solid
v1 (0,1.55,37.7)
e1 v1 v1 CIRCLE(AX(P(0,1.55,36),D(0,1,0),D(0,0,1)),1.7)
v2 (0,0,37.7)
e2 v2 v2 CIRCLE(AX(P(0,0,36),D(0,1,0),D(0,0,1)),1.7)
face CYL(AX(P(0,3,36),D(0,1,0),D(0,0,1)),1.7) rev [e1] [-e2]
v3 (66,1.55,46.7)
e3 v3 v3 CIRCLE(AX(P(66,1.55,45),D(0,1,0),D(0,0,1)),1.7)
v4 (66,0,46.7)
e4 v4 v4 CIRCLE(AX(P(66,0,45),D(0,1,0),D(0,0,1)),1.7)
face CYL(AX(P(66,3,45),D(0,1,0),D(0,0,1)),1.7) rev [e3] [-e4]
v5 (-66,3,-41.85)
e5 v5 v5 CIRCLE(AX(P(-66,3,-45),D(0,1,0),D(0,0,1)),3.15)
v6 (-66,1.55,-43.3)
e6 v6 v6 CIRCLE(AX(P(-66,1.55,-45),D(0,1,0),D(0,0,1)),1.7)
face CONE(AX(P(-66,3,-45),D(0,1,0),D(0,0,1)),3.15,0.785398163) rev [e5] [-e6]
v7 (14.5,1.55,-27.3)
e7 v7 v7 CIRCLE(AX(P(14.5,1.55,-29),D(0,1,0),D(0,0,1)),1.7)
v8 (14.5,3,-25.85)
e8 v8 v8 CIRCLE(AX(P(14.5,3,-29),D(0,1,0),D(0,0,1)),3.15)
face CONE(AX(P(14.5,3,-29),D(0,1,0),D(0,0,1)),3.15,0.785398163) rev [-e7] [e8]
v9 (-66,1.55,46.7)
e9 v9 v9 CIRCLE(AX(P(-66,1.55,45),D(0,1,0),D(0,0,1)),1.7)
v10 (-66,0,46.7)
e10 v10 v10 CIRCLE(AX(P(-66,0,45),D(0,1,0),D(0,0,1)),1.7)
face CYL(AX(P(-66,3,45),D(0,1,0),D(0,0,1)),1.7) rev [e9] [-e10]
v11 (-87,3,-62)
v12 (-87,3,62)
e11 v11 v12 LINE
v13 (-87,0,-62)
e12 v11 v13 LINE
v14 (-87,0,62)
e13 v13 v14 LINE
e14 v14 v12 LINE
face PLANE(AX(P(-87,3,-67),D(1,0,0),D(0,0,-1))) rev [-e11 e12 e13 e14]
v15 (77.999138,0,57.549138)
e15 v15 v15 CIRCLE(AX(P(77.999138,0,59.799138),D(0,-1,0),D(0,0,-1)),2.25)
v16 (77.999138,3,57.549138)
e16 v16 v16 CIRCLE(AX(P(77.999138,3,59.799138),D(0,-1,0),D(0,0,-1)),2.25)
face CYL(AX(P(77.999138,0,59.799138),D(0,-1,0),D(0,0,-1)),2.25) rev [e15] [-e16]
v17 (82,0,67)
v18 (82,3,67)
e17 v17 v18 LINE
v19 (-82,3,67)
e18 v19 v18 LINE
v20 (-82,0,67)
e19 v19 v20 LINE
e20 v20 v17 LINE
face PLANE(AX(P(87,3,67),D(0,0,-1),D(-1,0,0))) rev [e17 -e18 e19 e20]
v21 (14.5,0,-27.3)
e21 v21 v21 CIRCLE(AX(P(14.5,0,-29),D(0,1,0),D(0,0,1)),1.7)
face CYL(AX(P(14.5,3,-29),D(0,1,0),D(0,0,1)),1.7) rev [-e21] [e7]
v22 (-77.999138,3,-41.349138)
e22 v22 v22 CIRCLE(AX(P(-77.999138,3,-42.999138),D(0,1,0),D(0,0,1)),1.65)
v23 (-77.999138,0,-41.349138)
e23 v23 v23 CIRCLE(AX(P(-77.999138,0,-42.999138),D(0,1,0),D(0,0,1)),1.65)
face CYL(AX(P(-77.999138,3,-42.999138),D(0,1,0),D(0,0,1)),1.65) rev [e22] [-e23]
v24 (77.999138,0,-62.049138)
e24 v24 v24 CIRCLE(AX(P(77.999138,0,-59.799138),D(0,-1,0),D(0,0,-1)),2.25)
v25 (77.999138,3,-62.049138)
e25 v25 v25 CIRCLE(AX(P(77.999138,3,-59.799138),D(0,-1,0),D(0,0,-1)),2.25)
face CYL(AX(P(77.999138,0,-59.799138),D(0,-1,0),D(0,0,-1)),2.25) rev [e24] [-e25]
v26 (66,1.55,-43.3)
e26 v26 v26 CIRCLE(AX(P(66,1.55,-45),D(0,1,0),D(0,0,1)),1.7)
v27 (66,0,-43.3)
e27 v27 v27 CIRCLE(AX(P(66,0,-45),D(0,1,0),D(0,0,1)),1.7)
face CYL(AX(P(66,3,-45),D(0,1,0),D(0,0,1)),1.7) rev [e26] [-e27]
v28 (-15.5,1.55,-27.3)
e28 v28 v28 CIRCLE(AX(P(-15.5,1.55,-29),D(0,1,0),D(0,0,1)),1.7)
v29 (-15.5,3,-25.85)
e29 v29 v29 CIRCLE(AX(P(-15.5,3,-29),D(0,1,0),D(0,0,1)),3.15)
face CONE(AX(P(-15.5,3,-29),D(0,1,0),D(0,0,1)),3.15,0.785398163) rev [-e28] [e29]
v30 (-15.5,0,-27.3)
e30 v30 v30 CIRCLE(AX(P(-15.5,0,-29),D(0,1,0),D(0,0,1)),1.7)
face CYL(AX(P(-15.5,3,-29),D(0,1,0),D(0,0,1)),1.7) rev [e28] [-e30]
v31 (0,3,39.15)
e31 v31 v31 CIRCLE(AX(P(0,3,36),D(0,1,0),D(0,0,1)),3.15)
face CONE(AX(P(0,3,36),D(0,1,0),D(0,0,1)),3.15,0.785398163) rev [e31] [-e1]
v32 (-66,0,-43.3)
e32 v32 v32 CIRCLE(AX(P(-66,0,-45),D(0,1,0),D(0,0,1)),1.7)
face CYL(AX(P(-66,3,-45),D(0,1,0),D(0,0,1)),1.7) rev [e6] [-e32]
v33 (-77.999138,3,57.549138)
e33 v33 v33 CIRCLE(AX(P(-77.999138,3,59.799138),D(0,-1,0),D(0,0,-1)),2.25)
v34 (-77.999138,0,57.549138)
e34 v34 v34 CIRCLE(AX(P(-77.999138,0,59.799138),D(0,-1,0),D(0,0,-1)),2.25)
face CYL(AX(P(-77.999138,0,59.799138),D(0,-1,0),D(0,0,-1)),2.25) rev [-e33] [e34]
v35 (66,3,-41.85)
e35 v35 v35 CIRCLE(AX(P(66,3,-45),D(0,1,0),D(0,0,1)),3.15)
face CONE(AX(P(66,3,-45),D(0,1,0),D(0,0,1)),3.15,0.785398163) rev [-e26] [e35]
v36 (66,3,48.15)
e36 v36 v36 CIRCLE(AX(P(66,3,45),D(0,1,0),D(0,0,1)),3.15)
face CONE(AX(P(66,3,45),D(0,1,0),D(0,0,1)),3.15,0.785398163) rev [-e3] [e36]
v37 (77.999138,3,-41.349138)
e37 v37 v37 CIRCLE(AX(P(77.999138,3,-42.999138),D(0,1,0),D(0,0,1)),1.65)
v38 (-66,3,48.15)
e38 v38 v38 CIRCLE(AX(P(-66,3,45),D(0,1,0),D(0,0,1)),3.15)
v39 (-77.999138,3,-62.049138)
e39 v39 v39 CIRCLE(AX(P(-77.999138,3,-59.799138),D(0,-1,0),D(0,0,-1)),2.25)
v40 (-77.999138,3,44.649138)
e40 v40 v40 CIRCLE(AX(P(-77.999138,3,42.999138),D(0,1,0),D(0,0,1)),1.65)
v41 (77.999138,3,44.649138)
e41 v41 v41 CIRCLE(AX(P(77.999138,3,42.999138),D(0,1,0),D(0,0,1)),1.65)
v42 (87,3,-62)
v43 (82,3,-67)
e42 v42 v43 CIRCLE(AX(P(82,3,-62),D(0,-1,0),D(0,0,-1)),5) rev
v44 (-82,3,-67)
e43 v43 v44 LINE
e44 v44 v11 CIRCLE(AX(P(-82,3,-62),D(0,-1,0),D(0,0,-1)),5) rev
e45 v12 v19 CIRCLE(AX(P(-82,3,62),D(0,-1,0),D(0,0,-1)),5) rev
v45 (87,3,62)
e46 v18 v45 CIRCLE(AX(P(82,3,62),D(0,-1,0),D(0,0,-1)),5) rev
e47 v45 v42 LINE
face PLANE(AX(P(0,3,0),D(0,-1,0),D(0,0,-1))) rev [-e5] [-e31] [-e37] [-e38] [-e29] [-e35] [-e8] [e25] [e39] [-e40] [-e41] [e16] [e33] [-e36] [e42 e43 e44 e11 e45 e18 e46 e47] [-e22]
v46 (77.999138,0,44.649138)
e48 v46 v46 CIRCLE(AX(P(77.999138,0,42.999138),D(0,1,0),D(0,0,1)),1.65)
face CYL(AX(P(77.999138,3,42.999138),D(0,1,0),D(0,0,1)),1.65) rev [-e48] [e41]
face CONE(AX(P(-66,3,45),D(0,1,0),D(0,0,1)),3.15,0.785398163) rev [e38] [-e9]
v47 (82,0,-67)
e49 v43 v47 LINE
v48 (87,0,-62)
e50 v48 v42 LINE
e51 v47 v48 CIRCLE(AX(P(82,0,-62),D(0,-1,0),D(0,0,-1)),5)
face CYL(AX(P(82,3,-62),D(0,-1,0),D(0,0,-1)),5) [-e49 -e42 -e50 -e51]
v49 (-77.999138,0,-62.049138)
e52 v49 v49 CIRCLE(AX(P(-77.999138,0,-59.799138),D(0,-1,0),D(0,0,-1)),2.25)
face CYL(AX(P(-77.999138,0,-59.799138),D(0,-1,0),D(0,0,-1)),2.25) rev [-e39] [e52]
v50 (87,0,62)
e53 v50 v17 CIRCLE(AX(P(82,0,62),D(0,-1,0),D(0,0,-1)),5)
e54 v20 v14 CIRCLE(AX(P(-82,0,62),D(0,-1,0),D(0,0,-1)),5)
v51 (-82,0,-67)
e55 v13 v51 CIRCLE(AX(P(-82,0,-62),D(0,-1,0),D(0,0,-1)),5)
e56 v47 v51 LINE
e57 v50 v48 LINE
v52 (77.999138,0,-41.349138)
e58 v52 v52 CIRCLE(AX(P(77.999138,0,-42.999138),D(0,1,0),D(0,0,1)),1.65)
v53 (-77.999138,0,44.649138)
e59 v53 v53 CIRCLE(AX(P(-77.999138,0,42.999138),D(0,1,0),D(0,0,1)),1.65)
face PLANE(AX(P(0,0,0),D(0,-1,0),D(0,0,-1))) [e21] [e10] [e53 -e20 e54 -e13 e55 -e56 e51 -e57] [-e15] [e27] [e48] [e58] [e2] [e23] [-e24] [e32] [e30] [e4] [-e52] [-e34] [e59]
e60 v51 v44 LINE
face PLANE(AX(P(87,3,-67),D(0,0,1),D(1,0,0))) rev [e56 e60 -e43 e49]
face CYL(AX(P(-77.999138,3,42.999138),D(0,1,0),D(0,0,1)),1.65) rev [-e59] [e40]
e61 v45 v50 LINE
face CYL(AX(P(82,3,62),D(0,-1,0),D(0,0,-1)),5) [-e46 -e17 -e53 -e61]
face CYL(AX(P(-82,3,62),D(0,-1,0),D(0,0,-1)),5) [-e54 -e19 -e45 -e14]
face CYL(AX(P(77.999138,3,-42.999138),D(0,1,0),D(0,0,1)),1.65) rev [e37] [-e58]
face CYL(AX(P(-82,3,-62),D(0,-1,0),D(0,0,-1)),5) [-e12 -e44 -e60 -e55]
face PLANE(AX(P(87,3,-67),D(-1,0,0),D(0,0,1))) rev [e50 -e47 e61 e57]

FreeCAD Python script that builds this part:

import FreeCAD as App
import Part
import Sketcher
Q = App.Units.Quantity


def edges_at(feature, points):
    """Names of the edges that pass closest to the given points."""
    edges = feature.Shape.Edges
    near = lambda p: min(range(len(edges)), key=lambda i: edges[i].distToShape(Part.Vertex(*p))[0])
    return sorted({f"Edge{near(p) + 1}" for p in points})


def add_polygon(sketch, points):
    """Adds a closed chain of lines whose ends are joined by coincident constraints."""
    first, n = sketch.GeometryCount, len(points)
    for a, b in zip(points, points[1:] + points[:1]):
        sketch.addGeometry(Part.LineSegment(App.Vector(*a, 0), App.Vector(*b, 0)), False)
    for i in range(n):
        sketch.addConstraint(Sketcher.Constraint("Coincident", first + i, 2, first + (i + 1) % n, 1))

doc = App.newDocument("Part")
params = doc.addObject("Spreadsheet::Sheet", "Params")
for row, (alias, value) in enumerate([
    ("sketch1_width", "174 mm"),
    ("sketch1_height", "134 mm"),
    ("pad1_length", "3 mm"),
    ("sketch2_diameter", "3.3 mm"),
    ("hole_diameter", "3.3 mm"),
    ("fillet_radius", "5 mm"),
    ("sketch3_width", "3 mm"),
    ("sketch3_height", "1.7 mm"),
    ("sketch3_width2", "1.55 mm"),
    ("groove_angle", "360 deg"),
    ("linearpattern_pitch", "132 mm"),
    ("linearpattern2_pitch", "90 mm"),
    ("linearpattern3_pitch", "159.762324 mm"),
    ("sketch4_width", "3 mm"),
    ("sketch4_height", "1.7 mm"),
    ("sketch4_width2", "1.55 mm"),
    ("groove2_angle", "360 deg"),
    ("linearpattern4_pitch", "66.597673 mm"),
    ("linearpattern5_pitch", "66.822526 mm"),
    ("sketch5_diameter", "4.5 mm"),
    ("hole2_diameter", "4.5 mm"),
], start=1):
    params.set(f"A{row}", alias)
    params.set(f"B{row}", "=" + value)
    params.setAlias(f"B{row}", alias)

body = doc.addObject("PartDesign::Body", "Body")

# Sketch on XZ plane
sketch1 = body.newObject("Sketcher::SketchObject", "Sketch")
sketch1.AttachmentSupport = (doc.getObject("XZ_Plane"), [""])
sketch1.MapMode = "FlatFace"
add_polygon(sketch1, [(-87, -67), (-87, 67), (87, 67), (87, -67)])  # lines 0-3
sketch1.addConstraint([
    Sketcher.Constraint("Vertical", 0),
    Sketcher.Constraint("Horizontal", 1),
    Sketcher.Constraint("Vertical", 2),
    Sketcher.Constraint("Horizontal", 3),
    Sketcher.Constraint("Symmetric", 0, 2, 2, 2, -1, 1),
    Sketcher.Constraint("DistanceX", 1, 1, 1, 2, 174.0),
    Sketcher.Constraint("DistanceY", 0, 1, 0, 2, 134.0),
])
sketch1.setExpression("Constraints[9]", "Params.sketch1_width")
sketch1.setExpression("Constraints[10]", "Params.sketch1_height")
pad1 = body.newObject("PartDesign::Pad", "Pad")
pad1.Profile = sketch1
pad1.setExpression("Length", "Params.pad1_length")
pad1.Reversed = True

# Sketch on XZ plane
sketch2 = body.newObject("Sketcher::SketchObject", "Sketch001")
sketch2.AttachmentSupport = (doc.getObject("XZ_Plane"), [""])
sketch2.MapMode = "FlatFace"
sketch2.AttachmentOffset = App.Placement(App.Vector(0, 0, -3), App.Rotation())
sketch2.addGeometry([
    Part.Circle(App.Vector(-78, -43, 0), App.Vector(0, 0, 1), 1.6),  # 0
    Part.Circle(App.Vector(78, -43, 0), App.Vector(0, 0, 1), 1.6),  # 1
    Part.Circle(App.Vector(78, 43, 0), App.Vector(0, 0, 1), 1.6),  # 2
    Part.Circle(App.Vector(-78, 43, 0), App.Vector(0, 0, 1), 1.6),  # 3
    Part.Circle(App.Vector(-78, -59.8, 0), App.Vector(0, 0, 1), 1.6),  # 4
    Part.Circle(App.Vector(-78, 59.8, 0), App.Vector(0, 0, 1), 1.6),  # 5
    Part.Circle(App.Vector(78, -59.8, 0), App.Vector(0, 0, 1), 1.6),  # 6
    Part.Circle(App.Vector(78, 59.8, 0), App.Vector(0, 0, 1), 1.6),  # 7
], False)
sketch2.addConstraint([
    Sketcher.Constraint("Equal", 0, 1),
    Sketcher.Constraint("Equal", 1, 2),
    Sketcher.Constraint("Equal", 2, 3),
    Sketcher.Constraint("Equal", 3, 4),
    Sketcher.Constraint("Equal", 4, 5),
    Sketcher.Constraint("Equal", 5, 6),
    Sketcher.Constraint("Equal", 6, 7),
    Sketcher.Constraint("Symmetric", 0, 3, 2, 3, -1, 1),
    Sketcher.Constraint("Symmetric", 1, 3, 3, 3, -1, 1),
    Sketcher.Constraint("Symmetric", 5, 3, 6, 3, -1, 1),
    Sketcher.Constraint("Symmetric", 4, 3, 7, 3, -1, 1),
    Sketcher.Constraint("Symmetric", 0, 3, 1, 3, -2),
    Sketcher.Constraint("Symmetric", 4, 3, 6, 3, -2),
    Sketcher.Constraint("Vertical", 3, 3, 4, 3),
    Sketcher.Constraint("Diameter", 0, 3.3),
    Sketcher.Constraint("DistanceY", 4, 3, 0, 3, 16.8),
    Sketcher.Constraint("DistanceX", 0, 3, -1, 1, 77.999138),
    Sketcher.Constraint("DistanceY", 0, 3, -1, 1, 42.999138),
])
sketch2.setExpression("Constraints[14]", "Params.sketch2_diameter")
doc.recompute()
hole = body.newObject("PartDesign::Hole", "Hole")
hole.Profile = sketch2
hole.ThreadType = "None"
hole.setExpression("Diameter", "Params.hole_diameter")
hole.DepthType = "ThroughAll"
hole.Reversed = True
doc.recompute()

fillet = body.newObject("PartDesign::Fillet", "Fillet")
fillet.Base = (hole, edges_at(hole, [
    (-87, 1.5, -67),
    (87, 1.5, -67),
    (87, 1.5, 67),
    (-87, 1.5, 67),
]))
fillet.setExpression("Radius", "Params.fillet_radius")

# Sketch on YZ plane
sketch3 = body.newObject("Sketcher::SketchObject", "Sketch002")
sketch3.AttachmentSupport = (doc.getObject("YZ_Plane"), [""])
sketch3.MapMode = "FlatFace"
sketch3.AttachmentOffset = App.Placement(App.Vector(0, 0, -66), App.Rotation())
add_polygon(sketch3, [(0, -45), (3, -45), (3, -41.9), (1.6, -43.3), (0, -43.3)])  # lines 0-4
sketch3.addGeometry(Part.LineSegment(App.Vector(3, -45, 0), App.Vector(0, -45, 0)), True)  # axis
sketch3.addConstraint([
    Sketcher.Constraint("Horizontal", 0),
    Sketcher.Constraint("Vertical", 1),
    Sketcher.Constraint("Horizontal", 3),
    Sketcher.Constraint("Vertical", 4),
    Sketcher.Constraint("Horizontal", 5),
    Sketcher.Constraint("Coincident", 5, 1, 0, 2),
    Sketcher.Constraint("PointOnObject", 3, 2, -2),
    Sketcher.Constraint("PointOnObject", 5, 2, -2),
    Sketcher.Constraint("DistanceX", 0, 1, 0, 2, 3.0),
    Sketcher.Constraint("Angle", 2, Q("-135 deg")),
    Sketcher.Constraint("DistanceY", 4, 2, 4, 1, 1.7),
    Sketcher.Constraint("DistanceY", 0, 2, -1, 1, 45.0),
    Sketcher.Constraint("DistanceX", 3, 2, 3, 1, 1.55),
])
sketch3.setExpression("Constraints[13]", "Params.sketch3_width")
sketch3.setExpression("Constraints[15]", "Params.sketch3_height")
sketch3.setExpression("Constraints[17]", "Params.sketch3_width2")
groove = body.newObject("PartDesign::Groove", "Groove")
groove.Profile = sketch3
groove.ReferenceAxis = (sketch3, ["Axis0"])
groove.setExpression("Angle", "Params.groove_angle")
doc.recompute()

linearpattern = body.newObject("PartDesign::LinearPattern", "LinearPattern")
linearpattern.Originals = [groove]
linearpattern.Direction = (doc.getObject("X_Axis"), [""])
linearpattern.Mode = "offset"
linearpattern.setExpression("Offset", "Params.linearpattern_pitch")
linearpattern.Occurrences = 2
body.Tip = linearpattern
doc.recompute()

linearpattern2 = body.newObject("PartDesign::LinearPattern", "LinearPattern001")
linearpattern2.Originals = [groove]
linearpattern2.Direction = (doc.getObject("Z_Axis"), [""])
linearpattern2.Mode = "offset"
linearpattern2.setExpression("Offset", "Params.linearpattern2_pitch")
linearpattern2.Occurrences = 2
body.Tip = linearpattern2
doc.recompute()

datumline = body.newObject("PartDesign::Line", "DatumLine")
datumline.Placement = App.Placement(App.Vector(0, 0, 0), App.Rotation(App.Vector(0, 0, 1), App.Vector(0.826227343, 0, 0.563336825)))
linearpattern3 = body.newObject("PartDesign::LinearPattern", "LinearPattern002")
linearpattern3.Originals = [groove]
linearpattern3.Direction = (datumline, [""])
linearpattern3.Mode = "offset"
linearpattern3.setExpression("Offset", "Params.linearpattern3_pitch")
linearpattern3.Occurrences = 2
body.Tip = linearpattern3

# Sketch on YZ plane
sketch4 = body.newObject("Sketcher::SketchObject", "Sketch003")
sketch4.AttachmentSupport = (doc.getObject("YZ_Plane"), [""])
sketch4.MapMode = "FlatFace"
add_polygon(sketch4, [(0, 36), (3, 36), (3, 39.1), (1.6, 37.7), (0, 37.7)])  # lines 0-4
sketch4.addGeometry(Part.LineSegment(App.Vector(3, 36, 0), App.Vector(0, 36, 0)), True)  # axis
sketch4.addConstraint([
    Sketcher.Constraint("Horizontal", 0),
    Sketcher.Constraint("Vertical", 1),
    Sketcher.Constraint("Horizontal", 3),
    Sketcher.Constraint("Vertical", 4),
    Sketcher.Constraint("Horizontal", 5),
    Sketcher.Constraint("Coincident", 5, 1, 0, 2),
    Sketcher.Constraint("PointOnObject", 3, 2, -2),
    Sketcher.Constraint("PointOnObject", 5, 2, -2),
    Sketcher.Constraint("DistanceX", 0, 1, 0, 2, 3.0),
    Sketcher.Constraint("Angle", 2, Q("-135 deg")),
    Sketcher.Constraint("DistanceY", 4, 2, 4, 1, 1.7),
    Sketcher.Constraint("DistanceY", -1, 1, 0, 2, 36.0),
    Sketcher.Constraint("DistanceX", 3, 2, 3, 1, 1.55),
])
sketch4.setExpression("Constraints[13]", "Params.sketch4_width")
sketch4.setExpression("Constraints[15]", "Params.sketch4_height")
sketch4.setExpression("Constraints[17]", "Params.sketch4_width2")
groove2 = body.newObject("PartDesign::Groove", "Groove001")
groove2.Profile = sketch4
groove2.ReferenceAxis = (sketch4, ["Axis0"])
groove2.setExpression("Angle", "Params.groove2_angle")
doc.recompute()

datumline2 = body.newObject("PartDesign::Line", "DatumLine001")
datumline2.Placement = App.Placement(App.Vector(0, 0, 0), App.Rotation(App.Vector(0, 0, 1), App.Vector(0.217725326, 0, -0.976010083)))
linearpattern4 = body.newObject("PartDesign::LinearPattern", "LinearPattern003")
linearpattern4.Originals = [groove2]
linearpattern4.Direction = (datumline2, [""])
linearpattern4.Mode = "offset"
linearpattern4.setExpression("Offset", "Params.linearpattern4_pitch")
linearpattern4.Occurrences = 2
body.Tip = linearpattern4
doc.recompute()

datumline3 = body.newObject("PartDesign::Line", "DatumLine002")
datumline3.Placement = App.Placement(App.Vector(0, 0, 0), App.Rotation(App.Vector(0, 0, 1), App.Vector(-0.231957708, 0, -0.972725872)))
linearpattern5 = body.newObject("PartDesign::LinearPattern", "LinearPattern004")
linearpattern5.Originals = [groove2]
linearpattern5.Direction = (datumline3, [""])
linearpattern5.Mode = "offset"
linearpattern5.setExpression("Offset", "Params.linearpattern5_pitch")
linearpattern5.Occurrences = 2
body.Tip = linearpattern5

# Sketch on XZ plane
sketch5 = body.newObject("Sketcher::SketchObject", "Sketch004")
sketch5.AttachmentSupport = (doc.getObject("XZ_Plane"), [""])
sketch5.MapMode = "FlatFace"
sketch5.addGeometry([
    Part.Circle(App.Vector(-78, -59.8, 0), App.Vector(0, 0, 1), 2.2),
    Part.Circle(App.Vector(78, -59.8, 0), App.Vector(0, 0, 1), 2.2),
    Part.Circle(App.Vector(78, 59.8, 0), App.Vector(0, 0, 1), 2.2),
    Part.Circle(App.Vector(-78, 59.8, 0), App.Vector(0, 0, 1), 2.2),
], False)
sketch5.addConstraint([
    Sketcher.Constraint("Equal", 0, 1),
    Sketcher.Constraint("Equal", 1, 2),
    Sketcher.Constraint("Equal", 2, 3),
    Sketcher.Constraint("Symmetric", 0, 3, 2, 3, -1, 1),
    Sketcher.Constraint("Symmetric", 1, 3, 3, 3, -1, 1),
    Sketcher.Constraint("Symmetric", 0, 3, 1, 3, -2),
    Sketcher.Constraint("Diameter", 0, 4.5),
    Sketcher.Constraint("DistanceX", 0, 3, -1, 1, 77.999138),
    Sketcher.Constraint("DistanceY", 0, 3, -1, 1, 59.799138),
])
sketch5.setExpression("Constraints[6]", "Params.sketch5_diameter")
doc.recompute()
hole2 = body.newObject("PartDesign::Hole", "Hole001")
hole2.Profile = sketch5
hole2.ThreadType = "None"
hole2.setExpression("Diameter", "Params.hole2_diameter")
hole2.DepthType = "ThroughAll"

doc.recompute()
